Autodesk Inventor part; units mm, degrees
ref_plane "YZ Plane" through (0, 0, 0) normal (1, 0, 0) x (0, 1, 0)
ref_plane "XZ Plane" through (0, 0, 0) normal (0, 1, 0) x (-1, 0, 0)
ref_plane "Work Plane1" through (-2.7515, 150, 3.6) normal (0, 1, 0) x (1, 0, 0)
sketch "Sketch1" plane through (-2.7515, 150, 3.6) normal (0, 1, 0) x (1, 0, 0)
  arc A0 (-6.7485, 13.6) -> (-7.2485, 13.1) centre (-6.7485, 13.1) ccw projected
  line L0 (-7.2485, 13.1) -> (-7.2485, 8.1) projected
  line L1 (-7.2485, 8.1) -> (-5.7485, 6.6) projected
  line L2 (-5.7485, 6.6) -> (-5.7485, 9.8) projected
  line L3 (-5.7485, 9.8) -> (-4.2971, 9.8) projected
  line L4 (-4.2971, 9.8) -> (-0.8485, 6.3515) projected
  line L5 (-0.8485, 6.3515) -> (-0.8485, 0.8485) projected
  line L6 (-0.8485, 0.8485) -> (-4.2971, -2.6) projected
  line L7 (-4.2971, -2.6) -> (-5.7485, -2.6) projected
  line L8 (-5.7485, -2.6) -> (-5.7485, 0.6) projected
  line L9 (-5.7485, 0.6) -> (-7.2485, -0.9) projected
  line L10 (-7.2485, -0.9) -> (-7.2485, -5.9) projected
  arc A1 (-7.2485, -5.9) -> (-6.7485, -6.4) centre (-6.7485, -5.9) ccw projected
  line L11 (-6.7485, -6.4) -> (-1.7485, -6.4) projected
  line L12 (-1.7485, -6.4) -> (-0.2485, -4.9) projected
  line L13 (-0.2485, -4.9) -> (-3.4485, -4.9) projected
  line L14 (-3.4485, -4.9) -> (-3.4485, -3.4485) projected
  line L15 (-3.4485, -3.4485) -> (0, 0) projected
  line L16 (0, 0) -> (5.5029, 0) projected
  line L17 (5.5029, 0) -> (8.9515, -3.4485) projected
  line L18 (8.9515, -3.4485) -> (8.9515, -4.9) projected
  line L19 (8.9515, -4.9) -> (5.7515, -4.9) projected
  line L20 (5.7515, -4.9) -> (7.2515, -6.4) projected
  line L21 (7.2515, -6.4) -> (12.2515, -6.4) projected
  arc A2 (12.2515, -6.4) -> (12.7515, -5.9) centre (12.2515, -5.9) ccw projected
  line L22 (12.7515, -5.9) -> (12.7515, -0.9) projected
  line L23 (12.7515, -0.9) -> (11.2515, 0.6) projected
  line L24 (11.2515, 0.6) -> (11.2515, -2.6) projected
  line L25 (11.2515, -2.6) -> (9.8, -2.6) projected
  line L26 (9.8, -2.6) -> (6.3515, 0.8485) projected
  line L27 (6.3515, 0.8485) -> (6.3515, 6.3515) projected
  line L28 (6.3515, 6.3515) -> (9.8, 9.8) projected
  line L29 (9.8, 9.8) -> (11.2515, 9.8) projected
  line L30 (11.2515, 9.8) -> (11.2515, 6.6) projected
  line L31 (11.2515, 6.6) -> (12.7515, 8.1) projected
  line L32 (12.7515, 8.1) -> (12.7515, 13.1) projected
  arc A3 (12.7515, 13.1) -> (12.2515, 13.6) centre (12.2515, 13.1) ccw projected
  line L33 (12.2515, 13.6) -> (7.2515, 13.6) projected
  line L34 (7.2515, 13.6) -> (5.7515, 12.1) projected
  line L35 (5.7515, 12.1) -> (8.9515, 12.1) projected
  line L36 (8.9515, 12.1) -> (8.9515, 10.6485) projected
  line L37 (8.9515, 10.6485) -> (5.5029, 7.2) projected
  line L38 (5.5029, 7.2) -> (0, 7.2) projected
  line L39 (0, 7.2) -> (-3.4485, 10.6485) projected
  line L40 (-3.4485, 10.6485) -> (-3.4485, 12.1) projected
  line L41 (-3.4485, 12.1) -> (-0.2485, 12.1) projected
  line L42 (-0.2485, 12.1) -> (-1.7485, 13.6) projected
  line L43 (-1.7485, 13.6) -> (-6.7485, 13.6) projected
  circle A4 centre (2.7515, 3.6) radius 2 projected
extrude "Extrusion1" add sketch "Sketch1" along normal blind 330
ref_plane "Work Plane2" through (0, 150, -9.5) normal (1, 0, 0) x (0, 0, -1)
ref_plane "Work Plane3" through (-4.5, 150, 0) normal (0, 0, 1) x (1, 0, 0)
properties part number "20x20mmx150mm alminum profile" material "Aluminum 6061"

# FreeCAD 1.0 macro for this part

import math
import FreeCAD as App
import Part
import Sketcher
from FreeCAD import Vector
Q = App.Units.Quantity

doc = App.newDocument("Part")
body = doc.addObject("PartDesign::Body", "Body")

sketch1 = body.newObject("Sketcher::SketchObject", "Sketch")
sketch1.AttachmentSupport = (doc.getObject("XZ_Plane"), [""])
sketch1.MapMode = "FlatFace"
sketch1.AttachmentOffset = App.Placement(Vector(0, 0, -150), App.Rotation())
sketch1.addGeometry(Part.LineSegment(Vector(-4.5, -10, 0), Vector(-9.5, -10, 0)), False)
sketch1.addGeometry(Part.ArcOfCircle(Part.Circle(Vector(-9.5, -9.5, 0), Vector(0, 0, 1), 0.5), math.radians(180), math.radians(270)), False)
sketch1.addGeometry(Part.LineSegment(Vector(-10, -9.5, 0), Vector(-10, -4.5, 0)), False)
sketch1.addGeometry(Part.LineSegment(Vector(-10, -4.5, 0), Vector(-8.5, -3, 0)), False)
sketch1.addGeometry(Part.LineSegment(Vector(-8.5, -3, 0), Vector(-8.5, -6.2, 0)), False)
sketch1.addGeometry(Part.LineSegment(Vector(-8.5, -6.2, 0), Vector(-7, -6.2, 0)), False)
sketch1.addGeometry(Part.LineSegment(Vector(-7, -6.2, 0), Vector(-3.6, -2.8, 0)), False)
sketch1.addGeometry(Part.LineSegment(Vector(-3.6, -2.8, 0), Vector(-3.6, 2.8, 0)), False)
sketch1.addGeometry(Part.LineSegment(Vector(-3.6, 2.8, 0), Vector(-7, 6.2, 0)), False)
sketch1.addGeometry(Part.LineSegment(Vector(-7, 6.2, 0), Vector(-8.5, 6.2, 0)), False)
sketch1.addGeometry(Part.LineSegment(Vector(-8.5, 6.2, 0), Vector(-8.5, 3, 0)), False)
sketch1.addGeometry(Part.LineSegment(Vector(-8.5, 3, 0), Vector(-10, 4.5, 0)), False)
sketch1.addGeometry(Part.LineSegment(Vector(-10, 4.5, 0), Vector(-10, 9.5, 0)), False)
sketch1.addGeometry(Part.ArcOfCircle(Part.Circle(Vector(-9.5, 9.5, 0), Vector(0, 0, 1), 0.5), math.radians(90), math.radians(180)), False)
sketch1.addGeometry(Part.LineSegment(Vector(-9.5, 10, 0), Vector(-4.5, 10, 0)), False)
sketch1.addGeometry(Part.LineSegment(Vector(-4.5, 10, 0), Vector(-3, 8.5, 0)), False)
sketch1.addGeometry(Part.LineSegment(Vector(-3, 8.5, 0), Vector(-6.2, 8.5, 0)), False)
sketch1.addGeometry(Part.LineSegment(Vector(-6.2, 8.5, 0), Vector(-6.2, 7, 0)), False)
sketch1.addGeometry(Part.LineSegment(Vector(-6.2, 7, 0), Vector(-2.8, 3.6, 0)), False)
sketch1.addGeometry(Part.LineSegment(Vector(-2.8, 3.6, 0), Vector(2.8, 3.6, 0)), False)
sketch1.addGeometry(Part.LineSegment(Vector(2.8, 3.6, 0), Vector(6.2, 7, 0)), False)
sketch1.addGeometry(Part.LineSegment(Vector(6.2, 7, 0), Vector(6.2, 8.5, 0)), False)
sketch1.addGeometry(Part.LineSegment(Vector(6.2, 8.5, 0), Vector(3, 8.5, 0)), False)
sketch1.addGeometry(Part.LineSegment(Vector(3, 8.5, 0), Vector(4.5, 10, 0)), False)
sketch1.addGeometry(Part.LineSegment(Vector(4.5, 10, 0), Vector(9.5, 10, 0)), False)
sketch1.addGeometry(Part.ArcOfCircle(Part.Circle(Vector(9.5, 9.5, 0), Vector(0, 0, 1), 0.5), math.radians(0), math.radians(90)), False)
sketch1.addGeometry(Part.LineSegment(Vector(10, 9.5, 0), Vector(10, 4.5, 0)), False)
sketch1.addGeometry(Part.LineSegment(Vector(10, 4.5, 0), Vector(8.5, 3, 0)), False)
sketch1.addGeometry(Part.LineSegment(Vector(8.5, 3, 0), Vector(8.5, 6.2, 0)), False)
sketch1.addGeometry(Part.LineSegment(Vector(8.5, 6.2, 0), Vector(7, 6.2, 0)), False)
sketch1.addGeometry(Part.LineSegment(Vector(7, 6.2, 0), Vector(3.6, 2.8, 0)), False)
sketch1.addGeometry(Part.LineSegment(Vector(3.6, 2.8, 0), Vector(3.6, -2.8, 0)), False)
sketch1.addGeometry(Part.LineSegment(Vector(3.6, -2.8, 0), Vector(7, -6.2, 0)), False)
sketch1.addGeometry(Part.LineSegment(Vector(7, -6.2, 0), Vector(8.5, -6.2, 0)), False)
sketch1.addGeometry(Part.LineSegment(Vector(8.5, -6.2, 0), Vector(8.5, -3, 0)), False)
sketch1.addGeometry(Part.LineSegment(Vector(8.5, -3, 0), Vector(10, -4.5, 0)), False)
sketch1.addGeometry(Part.LineSegment(Vector(10, -4.5, 0), Vector(10, -9.5, 0)), False)
sketch1.addGeometry(Part.ArcOfCircle(Part.Circle(Vector(9.5, -9.5, 0), Vector(0, 0, 1), 0.5), math.radians(-90), math.radians(0)), False)
sketch1.addGeometry(Part.LineSegment(Vector(9.5, -10, 0), Vector(4.5, -10, 0)), False)
sketch1.addGeometry(Part.LineSegment(Vector(4.5, -10, 0), Vector(3, -8.5, 0)), False)
sketch1.addGeometry(Part.LineSegment(Vector(3, -8.5, 0), Vector(6.2, -8.5, 0)), False)
sketch1.addGeometry(Part.LineSegment(Vector(6.2, -8.5, 0), Vector(6.2, -7, 0)), False)
sketch1.addGeometry(Part.LineSegment(Vector(6.2, -7, 0), Vector(2.8, -3.6, 0)), False)
sketch1.addGeometry(Part.LineSegment(Vector(2.8, -3.6, 0), Vector(-2.8, -3.6, 0)), False)
sketch1.addGeometry(Part.LineSegment(Vector(-2.8, -3.6, 0), Vector(-6.2, -7, 0)), False)
sketch1.addGeometry(Part.LineSegment(Vector(-6.2, -7, 0), Vector(-6.2, -8.5, 0)), False)
sketch1.addGeometry(Part.LineSegment(Vector(-6.2, -8.5, 0), Vector(-3, -8.5, 0)), False)
sketch1.addGeometry(Part.LineSegment(Vector(-3, -8.5, 0), Vector(-4.5, -10, 0)), False)
sketch1.addGeometry(Part.Circle(Vector(0, 0, 0), Vector(0, 0, 1), 2), False)
sketch1.addConstraint(Sketcher.Constraint("Tangent", 0, 2, 1, 2))
sketch1.addConstraint(Sketcher.Constraint("Tangent", 1, 1, 2, 1))
sketch1.addConstraint(Sketcher.Constraint("Coincident", 2, 2, 3, 1))
sketch1.addConstraint(Sketcher.Constraint("Coincident", 3, 2, 4, 1))
sketch1.addConstraint(Sketcher.Constraint("Coincident", 4, 2, 5, 1))
sketch1.addConstraint(Sketcher.Constraint("Coincident", 5, 2, 6, 1))
sketch1.addConstraint(Sketcher.Constraint("Coincident", 6, 2, 7, 1))
sketch1.addConstraint(Sketcher.Constraint("Coincident", 7, 2, 8, 1))
sketch1.addConstraint(Sketcher.Constraint("Coincident", 8, 2, 9, 1))
sketch1.addConstraint(Sketcher.Constraint("Coincident", 9, 2, 10, 1))
sketch1.addConstraint(Sketcher.Constraint("Coincident", 10, 2, 11, 1))
sketch1.addConstraint(Sketcher.Constraint("Coincident", 11, 2, 12, 1))
sketch1.addConstraint(Sketcher.Constraint("Tangent", 12, 2, 13, 2))
sketch1.addConstraint(Sketcher.Constraint("Tangent", 13, 1, 14, 1))
sketch1.addConstraint(Sketcher.Constraint("Coincident", 14, 2, 15, 1))
sketch1.addConstraint(Sketcher.Constraint("Coincident", 15, 2, 16, 1))
sketch1.addConstraint(Sketcher.Constraint("Coincident", 16, 2, 17, 1))
sketch1.addConstraint(Sketcher.Constraint("Coincident", 17, 2, 18, 1))
sketch1.addConstraint(Sketcher.Constraint("Coincident", 18, 2, 19, 1))
sketch1.addConstraint(Sketcher.Constraint("Coincident", 19, 2, 20, 1))
sketch1.addConstraint(Sketcher.Constraint("Coincident", 20, 2, 21, 1))
sketch1.addConstraint(Sketcher.Constraint("Coincident", 21, 2, 22, 1))
sketch1.addConstraint(Sketcher.Constraint("Coincident", 22, 2, 23, 1))
sketch1.addConstraint(Sketcher.Constraint("Coincident", 23, 2, 24, 1))
sketch1.addConstraint(Sketcher.Constraint("Tangent", 24, 2, 25, 2))
sketch1.addConstraint(Sketcher.Constraint("Tangent", 25, 1, 26, 1))
sketch1.addConstraint(Sketcher.Constraint("Coincident", 26, 2, 27, 1))
sketch1.addConstraint(Sketcher.Constraint("Coincident", 27, 2, 28, 1))
sketch1.addConstraint(Sketcher.Constraint("Coincident", 28, 2, 29, 1))
sketch1.addConstraint(Sketcher.Constraint("Coincident", 29, 2, 30, 1))
sketch1.addConstraint(Sketcher.Constraint("Coincident", 30, 2, 31, 1))
sketch1.addConstraint(Sketcher.Constraint("Coincident", 31, 2, 32, 1))
sketch1.addConstraint(Sketcher.Constraint("Coincident", 32, 2, 33, 1))
sketch1.addConstraint(Sketcher.Constraint("Coincident", 33, 2, 34, 1))
sketch1.addConstraint(Sketcher.Constraint("Coincident", 34, 2, 35, 1))
sketch1.addConstraint(Sketcher.Constraint("Coincident", 35, 2, 36, 1))
sketch1.addConstraint(Sketcher.Constraint("Tangent", 36, 2, 37, 2))
sketch1.addConstraint(Sketcher.Constraint("Tangent", 37, 1, 38, 1))
sketch1.addConstraint(Sketcher.Constraint("Coincident", 38, 2, 39, 1))
sketch1.addConstraint(Sketcher.Constraint("Coincident", 39, 2, 40, 1))
sketch1.addConstraint(Sketcher.Constraint("Coincident", 40, 2, 41, 1))
sketch1.addConstraint(Sketcher.Constraint("Coincident", 41, 2, 42, 1))
sketch1.addConstraint(Sketcher.Constraint("Coincident", 42, 2, 43, 1))
sketch1.addConstraint(Sketcher.Constraint("Coincident", 43, 2, 44, 1))
sketch1.addConstraint(Sketcher.Constraint("Coincident", 44, 2, 45, 1))
sketch1.addConstraint(Sketcher.Constraint("Coincident", 45, 2, 46, 1))
sketch1.addConstraint(Sketcher.Constraint("Coincident", 46, 2, 47, 1))
sketch1.addConstraint(Sketcher.Constraint("Coincident", 47, 2, 0, 1))
sketch1.addConstraint(Sketcher.Constraint("Horizontal", 0))
sketch1.addConstraint(Sketcher.Constraint("Vertical", 2))
sketch1.addConstraint(Sketcher.Constraint("Vertical", 4))
sketch1.addConstraint(Sketcher.Constraint("Horizontal", 5))
sketch1.addConstraint(Sketcher.Constraint("Vertical", 7))
sketch1.addConstraint(Sketcher.Constraint("Horizontal", 9))
sketch1.addConstraint(Sketcher.Constraint("Vertical", 10))
sketch1.addConstraint(Sketcher.Constraint("Vertical", 12))
sketch1.addConstraint(Sketcher.Constraint("Horizontal", 14))
sketch1.addConstraint(Sketcher.Constraint("Horizontal", 16))
sketch1.addConstraint(Sketcher.Constraint("Vertical", 17))
sketch1.addConstraint(Sketcher.Constraint("Horizontal", 19))
sketch1.addConstraint(Sketcher.Constraint("Vertical", 21))
sketch1.addConstraint(Sketcher.Constraint("Horizontal", 22))
sketch1.addConstraint(Sketcher.Constraint("Horizontal", 24))
sketch1.addConstraint(Sketcher.Constraint("Vertical", 26))
sketch1.addConstraint(Sketcher.Constraint("Vertical", 28))
sketch1.addConstraint(Sketcher.Constraint("Horizontal", 29))
sketch1.addConstraint(Sketcher.Constraint("Vertical", 31))
sketch1.addConstraint(Sketcher.Constraint("Horizontal", 33))
sketch1.addConstraint(Sketcher.Constraint("Vertical", 34))
sketch1.addConstraint(Sketcher.Constraint("Vertical", 36))
sketch1.addConstraint(Sketcher.Constraint("Horizontal", 38))
sketch1.addConstraint(Sketcher.Constraint("Horizontal", 40))
sketch1.addConstraint(Sketcher.Constraint("Vertical", 41))
sketch1.addConstraint(Sketcher.Constraint("Horizontal", 43))
sketch1.addConstraint(Sketcher.Constraint("Vertical", 45))
sketch1.addConstraint(Sketcher.Constraint("Horizontal", 46))
sketch1.addConstraint(Sketcher.Constraint("Coincident", 48, 3, -1, 1))
sketch1.addConstraint(Sketcher.Constraint("Equal", 1, 13))
sketch1.addConstraint(Sketcher.Constraint("Equal", 13, 25))
sketch1.addConstraint(Sketcher.Constraint("Equal", 25, 37))
sketch1.addConstraint(Sketcher.Constraint("Symmetric", 1, 3, 25, 3, -1, 1))
sketch1.addConstraint(Sketcher.Constraint("Symmetric", 13, 3, 37, 3, -1, 1))
sketch1.addConstraint(Sketcher.Constraint("Symmetric", 3, 2, 27, 2, -1, 1))
sketch1.addConstraint(Sketcher.Constraint("Symmetric", 5, 2, 29, 2, -1, 1))
sketch1.addConstraint(Sketcher.Constraint("Symmetric", 6, 2, 30, 2, -1, 1))
sketch1.addConstraint(Sketcher.Constraint("Symmetric", 8, 2, 32, 2, -1, 1))
sketch1.addConstraint(Sketcher.Constraint("Symmetric", 10, 2, 34, 2, -1, 1))
sketch1.addConstraint(Sketcher.Constraint("Symmetric", 15, 2, 39, 2, -1, 1))
sketch1.addConstraint(Sketcher.Constraint("Symmetric", 17, 2, 41, 2, -1, 1))
sketch1.addConstraint(Sketcher.Constraint("Symmetric", 18, 2, 42, 2, -1, 1))
sketch1.addConstraint(Sketcher.Constraint("Symmetric", 20, 2, 44, 2, -1, 1))
sketch1.addConstraint(Sketcher.Constraint("Symmetric", 22, 2, 46, 2, -1, 1))
sketch1.addConstraint(Sketcher.Constraint("Symmetric", 13, 3, 25, 3, -2))
sketch1.addConstraint(Sketcher.Constraint("Symmetric", 17, 2, 20, 2, -2))
sketch1.addConstraint(Sketcher.Constraint("Symmetric", 15, 2, 22, 2, -2))
sketch1.addConstraint(Sketcher.Constraint("Symmetric", 10, 2, 27, 2, -2))
sketch1.addConstraint(Sketcher.Constraint("Symmetric", 8, 2, 29, 2, -2))
sketch1.addConstraint(Sketcher.Constraint("Parallel", 3, 6))
sketch1.addConstraint(Sketcher.Constraint("Perpendicular", 6, 8))
sketch1.addConstraint(Sketcher.Constraint("Parallel", 8, 11))
sketch1.addConstraint(Sketcher.Constraint("Parallel", 11, 15))
sketch1.addConstraint(Sketcher.Constraint("Parallel", 15, 18))
sketch1.addConstraint(Sketcher.Constraint("Perpendicular", 18, 20))
sketch1.addConstraint(Sketcher.Constraint("Parallel", 20, 23))
sketch1.addConstraint(Sketcher.Constraint("Parallel", 23, 27))
sketch1.addConstraint(Sketcher.Constraint("Perpendicular", 30, 32))
sketch1.addConstraint(Sketcher.Constraint("Parallel", 32, 35))
sketch1.addConstraint(Sketcher.Constraint("Parallel", 35, 39))
sketch1.addConstraint(Sketcher.Constraint("Perpendicular", 42, 44))
sketch1.addConstraint(Sketcher.Constraint("Parallel", 44, 47))
sketch1.addConstraint(Sketcher.Constraint("Horizontal", 11, 2, 26, 2))
sketch1.addConstraint(Sketcher.Constraint("Equal", 38, 2))
sketch1.addConstraint(Sketcher.Constraint("Equal", 46, 4))
sketch1.addConstraint(Sketcher.Constraint("Equal", 43, 7))
sketch1.addConstraint(Sketcher.Constraint("Equal", 33, 17))
sketch1.addConstraint(Sketcher.Constraint("Equal", 11, 15))
sketch1.addConstraint(Sketcher.Constraint("Equal", 8, 18))
sketch1.addConstraint(Sketcher.Constraint("Diameter", 48, Q("4 mm")))
sketch1.addConstraint(Sketcher.Constraint("Radius", 1, Q("0.5 mm")))
sketch1.addConstraint(Sketcher.Constraint("DistanceX", 0, 2, 0, 1, Q("5 mm")))
sketch1.addConstraint(Sketcher.Constraint("DistanceX", 16, 2, 16, 1, Q("3.2 mm")))
sketch1.addConstraint(Sketcher.Constraint("DistanceY", 0, 2, -1, 1, Q("10 mm")))
sketch1.addConstraint(Sketcher.Constraint("DistanceY", 3, 2, -1, 1, Q("3 mm")))
sketch1.addConstraint(Sketcher.Constraint("DistanceX", 6, 2, -1, 1, Q("3.6 mm")))
sketch1.addConstraint(Sketcher.Constraint("DistanceX", 19, 1, 19, 2, Q("5.503 mm")))
pad1 = body.newObject("PartDesign::Pad", "Pad")
pad1.Profile = sketch1
pad1.Length = 330
pad1.Reversed = True

doc.recompute()
